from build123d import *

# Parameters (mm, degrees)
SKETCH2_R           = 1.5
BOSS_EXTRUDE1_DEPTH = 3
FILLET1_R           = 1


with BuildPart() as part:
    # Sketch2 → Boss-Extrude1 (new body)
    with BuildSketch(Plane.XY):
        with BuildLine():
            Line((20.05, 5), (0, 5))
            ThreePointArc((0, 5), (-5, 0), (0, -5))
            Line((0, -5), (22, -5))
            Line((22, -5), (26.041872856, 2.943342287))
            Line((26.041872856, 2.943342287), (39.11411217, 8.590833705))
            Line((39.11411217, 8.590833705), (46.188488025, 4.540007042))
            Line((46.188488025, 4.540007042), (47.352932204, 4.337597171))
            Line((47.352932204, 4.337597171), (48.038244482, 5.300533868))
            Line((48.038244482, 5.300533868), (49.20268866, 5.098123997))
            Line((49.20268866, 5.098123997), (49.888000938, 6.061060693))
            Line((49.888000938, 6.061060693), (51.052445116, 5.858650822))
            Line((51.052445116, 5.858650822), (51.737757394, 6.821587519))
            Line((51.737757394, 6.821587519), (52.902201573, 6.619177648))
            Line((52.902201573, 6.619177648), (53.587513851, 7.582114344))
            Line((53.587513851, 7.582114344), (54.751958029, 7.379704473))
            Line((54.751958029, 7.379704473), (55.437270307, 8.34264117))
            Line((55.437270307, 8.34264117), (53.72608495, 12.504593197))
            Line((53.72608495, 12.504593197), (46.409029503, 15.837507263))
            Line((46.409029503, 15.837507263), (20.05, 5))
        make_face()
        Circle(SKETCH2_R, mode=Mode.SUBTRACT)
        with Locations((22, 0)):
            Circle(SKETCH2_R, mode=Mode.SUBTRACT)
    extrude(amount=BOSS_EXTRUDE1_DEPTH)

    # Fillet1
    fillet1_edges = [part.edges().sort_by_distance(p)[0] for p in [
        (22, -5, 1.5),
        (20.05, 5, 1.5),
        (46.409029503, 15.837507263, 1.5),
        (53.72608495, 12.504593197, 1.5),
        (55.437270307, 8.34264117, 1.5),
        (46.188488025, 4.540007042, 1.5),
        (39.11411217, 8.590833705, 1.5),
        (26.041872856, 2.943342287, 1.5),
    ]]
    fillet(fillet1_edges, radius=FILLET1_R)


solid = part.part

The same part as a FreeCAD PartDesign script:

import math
import FreeCAD as App
import Part
import Sketcher
Q = App.Units.Quantity


def edges_at(feature, points):
    """Names of the edges that pass closest to the given points."""
    edges = feature.Shape.Edges
    near = lambda p: min(range(len(edges)), key=lambda i: edges[i].distToShape(Part.Vertex(*p))[0])
    return sorted({f"Edge{near(p) + 1}" for p in points})

doc = App.newDocument("Part")
body = doc.addObject("PartDesign::Body", "Body")

# Sketch on XY plane
sketch1 = body.newObject("Sketcher::SketchObject", "Sketch")
sketch1.AttachmentSupport = (doc.getObject("XY_Plane"), [""])
sketch1.MapMode = "FlatFace"
sketch1.addGeometry([
    Part.LineSegment(App.Vector(20.1, 5, 0), App.Vector(0, 5, 0)),  # 0
    Part.ArcOfCircle(Part.Circle(App.Vector(0, 0, 0), App.Vector(0, 0, 1), 5), math.radians(90), math.radians(270)),  # 1
    Part.LineSegment(App.Vector(0, -5, 0), App.Vector(22, -5, 0)),  # 2
    Part.LineSegment(App.Vector(22, -5, 0), App.Vector(26, 2.9, 0)),  # 3
    Part.LineSegment(App.Vector(26, 2.9, 0), App.Vector(39.1, 8.6, 0)),  # 4
    Part.LineSegment(App.Vector(39.1, 8.6, 0), App.Vector(46.2, 4.5, 0)),  # 5
    Part.LineSegment(App.Vector(46.2, 4.5, 0), App.Vector(47.4, 4.3, 0)),  # 6
    Part.LineSegment(App.Vector(47.4, 4.3, 0), App.Vector(48, 5.3, 0)),  # 7
    Part.LineSegment(App.Vector(48, 5.3, 0), App.Vector(49.2, 5.1, 0)),  # 8
    Part.LineSegment(App.Vector(49.2, 5.1, 0), App.Vector(49.9, 6.1, 0)),  # 9
    Part.LineSegment(App.Vector(49.9, 6.1, 0), App.Vector(51.1, 5.9, 0)),  # 10
    Part.LineSegment(App.Vector(51.1, 5.9, 0), App.Vector(51.7, 6.8, 0)),  # 11
    Part.LineSegment(App.Vector(51.7, 6.8, 0), App.Vector(52.9, 6.6, 0)),  # 12
    Part.LineSegment(App.Vector(52.9, 6.6, 0), App.Vector(53.6, 7.6, 0)),  # 13
    Part.LineSegment(App.Vector(53.6, 7.6, 0), App.Vector(54.8, 7.4, 0)),  # 14
    Part.LineSegment(App.Vector(54.8, 7.4, 0), App.Vector(55.4, 8.3, 0)),  # 15
    Part.LineSegment(App.Vector(55.4, 8.3, 0), App.Vector(53.7, 12.5, 0)),  # 16
    Part.LineSegment(App.Vector(53.7, 12.5, 0), App.Vector(46.4, 15.8, 0)),  # 17
    Part.LineSegment(App.Vector(46.4, 15.8, 0), App.Vector(20.1, 5, 0)),  # 18
    Part.Circle(App.Vector(0, 0, 0), App.Vector(0, 0, 1), 1.5),  # 19
    Part.Circle(App.Vector(22, 0, 0), App.Vector(0, 0, 1), 1.5),  # 20
], False)
sketch1.addConstraint([
    Sketcher.Constraint("Tangent", 0, 2, 1, 1),
    Sketcher.Constraint("Tangent", 1, 2, 2, 1),
    Sketcher.Constraint("Coincident", 2, 2, 3, 1),
    Sketcher.Constraint("Coincident", 3, 2, 4, 1),
    Sketcher.Constraint("Coincident", 4, 2, 5, 1),
    Sketcher.Constraint("Coincident", 5, 2, 6, 1),
    Sketcher.Constraint("Coincident", 6, 2, 7, 1),
    Sketcher.Constraint("Coincident", 7, 2, 8, 1),
    Sketcher.Constraint("Coincident", 8, 2, 9, 1),
    Sketcher.Constraint("Coincident", 9, 2, 10, 1),
    Sketcher.Constraint("Coincident", 10, 2, 11, 1),
    Sketcher.Constraint("Coincident", 11, 2, 12, 1),
    Sketcher.Constraint("Coincident", 12, 2, 13, 1),
    Sketcher.Constraint("Coincident", 13, 2, 14, 1),
    Sketcher.Constraint("Coincident", 14, 2, 15, 1),
    Sketcher.Constraint("Coincident", 15, 2, 16, 1),
    Sketcher.Constraint("Coincident", 16, 2, 17, 1),
    Sketcher.Constraint("Coincident", 17, 2, 18, 1),
    Sketcher.Constraint("Coincident", 18, 2, 0, 1),
    Sketcher.Constraint("Horizontal", 0),
    Sketcher.Constraint("Horizontal", 2),
    Sketcher.Constraint("Coincident", 1, 3, -1, 1),
    Sketcher.Constraint("Coincident", 19, 3, -1, 1),
    Sketcher.Constraint("Equal", 19, 20),
    Sketcher.Constraint("PointOnObject", 20, 3, -1),
    Sketcher.Constraint("Parallel", 6, 8),
    Sketcher.Constraint("Parallel", 7, 9),
    Sketcher.Constraint("Parallel", 8, 10),
    Sketcher.Constraint("Parallel", 9, 11),
    Sketcher.Constraint("Parallel", 10, 12),
    Sketcher.Constraint("Parallel", 11, 13),
    Sketcher.Constraint("Parallel", 12, 14),
    Sketcher.Constraint("Parallel", 13, 15),
    Sketcher.Constraint("Perpendicular", 16, 18),
    Sketcher.Constraint("Vertical", 20, 3, 2, 2),
    Sketcher.Constraint("Equal", 6, 7),
    Sketcher.Constraint("Equal", 7, 8),
    Sketcher.Constraint("Equal", 8, 9),
    Sketcher.Constraint("Equal", 9, 10),
    Sketcher.Constraint("Equal", 10, 11),
    Sketcher.Constraint("Equal", 11, 12),
    Sketcher.Constraint("Equal", 12, 13),
    Sketcher.Constraint("Equal", 13, 14),
    Sketcher.Constraint("Equal", 14, 15),
    Sketcher.Constraint("Diameter", 19, Q("3 mm")),
    Sketcher.Constraint("Radius", 1, Q("5 mm")),
    Sketcher.Constraint("DistanceX", 2, 1, 2, 2, Q("22 mm")),
    Sketcher.Constraint("Distance", 16, Q("4.5 mm")),
    Sketcher.Constraint("Distance", 18, Q("28.5 mm")),
    Sketcher.Constraint("DistanceX", 0, 2, 0, 1, Q("20.05 mm")),
    Sketcher.Constraint("Angle", 16, Q("112.35 deg")),
    Sketcher.Constraint("Distance", 4, Q("14.24 mm")),
    Sketcher.Constraint("DistanceX", -1, 1, 9, 2, Q("49.888001 mm")),
    Sketcher.Constraint("DistanceX", -1, 1, 12, 2, Q("52.902202 mm")),
    Sketcher.Constraint("DistanceY", 7, 2, 4, 2, Q("3.2903 mm")),
    Sketcher.Constraint("DistanceX", -1, 1, 5, 2, Q("46.188488 mm")),
    Sketcher.Constraint("DistanceY", -1, 1, 9, 2, Q("6.061061 mm")),
    Sketcher.Constraint("DistanceY", -1, 1, 10, 2, Q("5.858651 mm")),
    Sketcher.Constraint("DistanceX", 3, 2, 4, 2, Q("13.072239 mm")),
    Sketcher.Constraint("DistanceX", 4, 2, 6, 2, Q("8.23882 mm")),
])
pad1 = body.newObject("PartDesign::Pad", "Pad")
pad1.Profile = sketch1
pad1.Length = 3
doc.recompute()

fillet = body.newObject("PartDesign::Fillet", "Fillet")
fillet.Base = (pad1, edges_at(pad1, [
    (22, -5, 1.5),
    (20.05, 5, 1.5),
    (46.409, 15.838, 1.5),
    (53.726, 12.505, 1.5),
    (55.437, 8.343, 1.5),
    (46.188, 4.54, 1.5),
    (39.114, 8.591, 1.5),
    (26.042, 2.943, 1.5),
]))
fillet.Radius = 1

doc.recompute()
